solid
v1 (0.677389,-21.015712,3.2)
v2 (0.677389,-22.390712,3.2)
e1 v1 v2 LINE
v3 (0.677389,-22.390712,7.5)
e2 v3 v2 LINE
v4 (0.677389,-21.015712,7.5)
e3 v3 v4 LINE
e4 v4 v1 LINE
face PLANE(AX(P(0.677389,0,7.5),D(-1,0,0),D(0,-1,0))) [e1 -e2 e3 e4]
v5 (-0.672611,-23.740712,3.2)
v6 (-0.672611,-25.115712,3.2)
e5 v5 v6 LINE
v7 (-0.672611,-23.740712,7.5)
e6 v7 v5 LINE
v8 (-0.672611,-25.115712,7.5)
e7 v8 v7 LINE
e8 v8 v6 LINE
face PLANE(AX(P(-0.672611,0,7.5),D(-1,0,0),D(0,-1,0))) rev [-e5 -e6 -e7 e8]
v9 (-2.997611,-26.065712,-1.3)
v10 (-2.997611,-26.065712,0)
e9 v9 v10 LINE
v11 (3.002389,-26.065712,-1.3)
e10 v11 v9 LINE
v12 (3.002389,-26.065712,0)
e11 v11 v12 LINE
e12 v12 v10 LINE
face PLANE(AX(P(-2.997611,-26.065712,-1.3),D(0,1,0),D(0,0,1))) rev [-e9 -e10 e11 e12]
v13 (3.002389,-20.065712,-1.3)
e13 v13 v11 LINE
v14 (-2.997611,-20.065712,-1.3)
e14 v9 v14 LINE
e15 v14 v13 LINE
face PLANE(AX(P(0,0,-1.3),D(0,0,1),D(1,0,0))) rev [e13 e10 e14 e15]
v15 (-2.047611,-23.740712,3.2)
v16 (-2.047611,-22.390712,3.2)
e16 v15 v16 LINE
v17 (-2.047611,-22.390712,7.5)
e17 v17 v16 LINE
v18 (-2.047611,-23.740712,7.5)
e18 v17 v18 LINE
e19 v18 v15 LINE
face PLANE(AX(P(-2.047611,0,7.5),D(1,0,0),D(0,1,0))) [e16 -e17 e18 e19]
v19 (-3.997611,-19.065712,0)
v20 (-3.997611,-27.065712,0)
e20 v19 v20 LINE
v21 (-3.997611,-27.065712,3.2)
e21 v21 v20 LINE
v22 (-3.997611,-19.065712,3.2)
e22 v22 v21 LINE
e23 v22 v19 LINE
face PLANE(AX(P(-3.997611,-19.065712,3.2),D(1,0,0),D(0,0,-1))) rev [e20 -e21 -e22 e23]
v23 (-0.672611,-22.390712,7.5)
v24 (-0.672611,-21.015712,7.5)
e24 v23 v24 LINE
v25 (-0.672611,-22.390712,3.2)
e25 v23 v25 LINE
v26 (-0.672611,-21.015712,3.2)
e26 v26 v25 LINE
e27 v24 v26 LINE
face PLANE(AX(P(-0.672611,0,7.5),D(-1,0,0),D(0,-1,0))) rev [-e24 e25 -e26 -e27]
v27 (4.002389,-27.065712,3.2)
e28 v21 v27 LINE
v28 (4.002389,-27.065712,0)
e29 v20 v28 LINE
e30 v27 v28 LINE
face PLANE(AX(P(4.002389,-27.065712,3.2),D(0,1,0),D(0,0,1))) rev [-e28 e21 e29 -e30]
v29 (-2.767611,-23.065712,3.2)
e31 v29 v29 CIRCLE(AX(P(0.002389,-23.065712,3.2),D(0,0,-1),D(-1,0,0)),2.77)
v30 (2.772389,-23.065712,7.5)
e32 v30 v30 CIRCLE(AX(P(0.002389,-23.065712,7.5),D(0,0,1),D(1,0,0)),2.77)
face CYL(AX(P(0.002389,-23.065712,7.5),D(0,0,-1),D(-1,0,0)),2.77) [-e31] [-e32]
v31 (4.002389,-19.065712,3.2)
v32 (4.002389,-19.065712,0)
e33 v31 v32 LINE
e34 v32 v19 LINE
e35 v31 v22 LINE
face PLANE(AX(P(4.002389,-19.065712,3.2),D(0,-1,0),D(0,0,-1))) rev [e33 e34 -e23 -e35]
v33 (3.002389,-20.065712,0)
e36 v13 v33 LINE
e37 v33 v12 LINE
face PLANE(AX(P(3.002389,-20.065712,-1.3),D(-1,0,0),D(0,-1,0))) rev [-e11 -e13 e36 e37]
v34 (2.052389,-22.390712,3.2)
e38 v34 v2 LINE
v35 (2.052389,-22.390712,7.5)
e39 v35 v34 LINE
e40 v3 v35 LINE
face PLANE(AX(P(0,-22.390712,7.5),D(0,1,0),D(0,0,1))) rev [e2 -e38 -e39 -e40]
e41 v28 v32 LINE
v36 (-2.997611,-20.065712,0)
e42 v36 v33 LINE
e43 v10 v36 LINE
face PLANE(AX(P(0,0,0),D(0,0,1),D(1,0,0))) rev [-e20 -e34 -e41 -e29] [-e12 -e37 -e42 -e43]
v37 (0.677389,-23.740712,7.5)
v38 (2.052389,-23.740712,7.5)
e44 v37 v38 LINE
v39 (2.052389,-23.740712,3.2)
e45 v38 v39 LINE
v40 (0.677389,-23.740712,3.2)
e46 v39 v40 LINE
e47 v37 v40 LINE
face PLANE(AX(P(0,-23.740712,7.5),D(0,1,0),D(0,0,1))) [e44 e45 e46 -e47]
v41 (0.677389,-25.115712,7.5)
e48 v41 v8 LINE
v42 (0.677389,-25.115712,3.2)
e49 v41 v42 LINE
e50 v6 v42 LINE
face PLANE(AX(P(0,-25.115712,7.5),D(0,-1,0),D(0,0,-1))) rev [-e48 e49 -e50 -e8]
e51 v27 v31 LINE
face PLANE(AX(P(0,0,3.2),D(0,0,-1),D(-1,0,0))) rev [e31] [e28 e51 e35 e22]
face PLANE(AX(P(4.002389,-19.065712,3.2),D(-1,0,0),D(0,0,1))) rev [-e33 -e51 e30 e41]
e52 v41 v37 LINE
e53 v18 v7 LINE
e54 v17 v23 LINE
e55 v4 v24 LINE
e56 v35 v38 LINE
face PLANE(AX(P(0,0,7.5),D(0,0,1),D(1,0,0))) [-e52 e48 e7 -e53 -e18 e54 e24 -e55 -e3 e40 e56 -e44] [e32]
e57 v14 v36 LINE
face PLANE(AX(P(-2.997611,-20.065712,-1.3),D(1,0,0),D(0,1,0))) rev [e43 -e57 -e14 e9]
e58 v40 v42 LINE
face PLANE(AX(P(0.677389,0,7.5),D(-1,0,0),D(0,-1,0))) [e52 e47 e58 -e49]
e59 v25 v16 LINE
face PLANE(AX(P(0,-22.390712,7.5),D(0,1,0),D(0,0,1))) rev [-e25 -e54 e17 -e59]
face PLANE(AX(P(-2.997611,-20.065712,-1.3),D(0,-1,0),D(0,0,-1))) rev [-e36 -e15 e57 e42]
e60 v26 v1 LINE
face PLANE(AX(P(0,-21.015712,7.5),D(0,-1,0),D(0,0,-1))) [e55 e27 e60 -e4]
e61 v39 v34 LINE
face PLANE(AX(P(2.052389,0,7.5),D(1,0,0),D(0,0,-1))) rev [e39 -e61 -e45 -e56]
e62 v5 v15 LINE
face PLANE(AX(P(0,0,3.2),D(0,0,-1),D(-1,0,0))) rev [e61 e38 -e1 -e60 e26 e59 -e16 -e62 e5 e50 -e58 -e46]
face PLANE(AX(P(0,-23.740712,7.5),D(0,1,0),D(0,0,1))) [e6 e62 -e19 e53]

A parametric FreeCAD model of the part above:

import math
import FreeCAD as App
import Part
import Sketcher
from FreeCAD import Vector
Q = App.Units.Quantity

doc = App.newDocument("Part")
params = doc.addObject("Spreadsheet::Sheet", "Params")
for row, (alias, value) in enumerate([
    ("sketch1_radius", "2.77 mm"),
    ("sketch1_width", "1.35 mm"),
    ("pad1_length", "7.5 mm"),
    ("sketch2_width", "8 mm"),
    ("pad2_length", "3.2 mm"),
    ("sketch3_width", "6 mm"),
    ("pad3_length", "1.3 mm"),
], start=1):
    params.set(f"A{row}", alias)
    params.set(f"B{row}", "=" + value)
    params.setAlias(f"B{row}", alias)

body = doc.addObject("PartDesign::Body", "Body")

sketch1 = doc.addObject("Sketcher::SketchObject", "Sketch")
body.addObject(sketch1)
sketch1.AttachmentSupport = (doc.XY_Plane, [""])
sketch1.MapMode = "FlatFace"
sketch1.addGeometry(Part.ArcOfCircle(Part.Circle(Vector(0, -23.1, 0), Vector(0, 0, 1), 2.8), math.radians(0), math.radians(90)), False)
sketch1.addGeometry(Part.ArcOfCircle(Part.Circle(Vector(0, -23.1, 0), Vector(0, 0, 1), 2.8), math.radians(90), math.radians(180)), False)
sketch1.addGeometry(Part.ArcOfCircle(Part.Circle(Vector(0, -23.1, 0), Vector(0, 0, 1), 2.8), math.radians(180), math.radians(270)), False)
sketch1.addGeometry(Part.ArcOfCircle(Part.Circle(Vector(0, -23.1, 0), Vector(0, 0, 1), 2.8), math.radians(-90), math.radians(0)), False)
sketch1.addGeometry(Part.LineSegment(Vector(-0.7, -23.7, 0), Vector(-2, -23.7, 0)), False)
sketch1.addGeometry(Part.LineSegment(Vector(-2, -23.7, 0), Vector(-2, -22.4, 0)), False)
sketch1.addGeometry(Part.LineSegment(Vector(-2, -22.4, 0), Vector(-0.7, -22.4, 0)), False)
sketch1.addGeometry(Part.LineSegment(Vector(-0.7, -22.4, 0), Vector(-0.7, -21, 0)), False)
sketch1.addGeometry(Part.LineSegment(Vector(-0.7, -21, 0), Vector(0.7, -21, 0)), False)
sketch1.addGeometry(Part.LineSegment(Vector(0.7, -21, 0), Vector(0.7, -22.4, 0)), False)
sketch1.addGeometry(Part.LineSegment(Vector(0.7, -22.4, 0), Vector(2.1, -22.4, 0)), False)
sketch1.addGeometry(Part.LineSegment(Vector(2.1, -22.4, 0), Vector(2.1, -23.7, 0)), False)
sketch1.addGeometry(Part.LineSegment(Vector(2.1, -23.7, 0), Vector(0.7, -23.7, 0)), False)
sketch1.addGeometry(Part.LineSegment(Vector(0.7, -23.7, 0), Vector(0.7, -25.1, 0)), False)
sketch1.addGeometry(Part.LineSegment(Vector(0.7, -25.1, 0), Vector(-0.7, -25.1, 0)), False)
sketch1.addGeometry(Part.LineSegment(Vector(-0.7, -25.1, 0), Vector(-0.7, -23.7, 0)), False)
sketch1.addConstraint(Sketcher.Constraint("Tangent", 0, 2, 1, 1))
sketch1.addConstraint(Sketcher.Constraint("Tangent", 1, 2, 2, 1))
sketch1.addConstraint(Sketcher.Constraint("Tangent", 2, 2, 3, 1))
sketch1.addConstraint(Sketcher.Constraint("Tangent", 3, 2, 0, 1))
sketch1.addConstraint(Sketcher.Constraint("Coincident", 4, 2, 5, 1))
sketch1.addConstraint(Sketcher.Constraint("Coincident", 5, 2, 6, 1))
sketch1.addConstraint(Sketcher.Constraint("Coincident", 6, 2, 7, 1))
sketch1.addConstraint(Sketcher.Constraint("Coincident", 7, 2, 8, 1))
sketch1.addConstraint(Sketcher.Constraint("Coincident", 8, 2, 9, 1))
sketch1.addConstraint(Sketcher.Constraint("Coincident", 9, 2, 10, 1))
sketch1.addConstraint(Sketcher.Constraint("Coincident", 10, 2, 11, 1))
sketch1.addConstraint(Sketcher.Constraint("Coincident", 11, 2, 12, 1))
sketch1.addConstraint(Sketcher.Constraint("Coincident", 12, 2, 13, 1))
sketch1.addConstraint(Sketcher.Constraint("Coincident", 13, 2, 14, 1))
sketch1.addConstraint(Sketcher.Constraint("Coincident", 14, 2, 15, 1))
sketch1.addConstraint(Sketcher.Constraint("Coincident", 15, 2, 4, 1))
sketch1.addConstraint(Sketcher.Constraint("Horizontal", 4))
sketch1.addConstraint(Sketcher.Constraint("Vertical", 5))
sketch1.addConstraint(Sketcher.Constraint("Horizontal", 6))
sketch1.addConstraint(Sketcher.Constraint("Vertical", 7))
sketch1.addConstraint(Sketcher.Constraint("Horizontal", 8))
sketch1.addConstraint(Sketcher.Constraint("Vertical", 9))
sketch1.addConstraint(Sketcher.Constraint("Horizontal", 10))
sketch1.addConstraint(Sketcher.Constraint("Vertical", 11))
sketch1.addConstraint(Sketcher.Constraint("Horizontal", 12))
sketch1.addConstraint(Sketcher.Constraint("Vertical", 13))
sketch1.addConstraint(Sketcher.Constraint("Horizontal", 14))
sketch1.addConstraint(Sketcher.Constraint("Vertical", 15))
sketch1.addConstraint(Sketcher.Constraint("Equal", 0, 1))
sketch1.addConstraint(Sketcher.Constraint("Horizontal", 3, 3, 1, 2))
sketch1.addConstraint(Sketcher.Constraint("Horizontal", 1, 2, 3, 2))
sketch1.addConstraint(Sketcher.Constraint("Horizontal", 6, 2, 9, 2))
sketch1.addConstraint(Sketcher.Constraint("Horizontal", 4, 2, 11, 2))
sketch1.addConstraint(Sketcher.Constraint("Vertical", 3, 3, 0, 2))
sketch1.addConstraint(Sketcher.Constraint("Vertical", 0, 2, 2, 2))
sketch1.addConstraint(Sketcher.Constraint("Vertical", 9, 2, 12, 2))
sketch1.addConstraint(Sketcher.Constraint("Vertical", 7, 2, 14, 2))
sketch1.addConstraint(Sketcher.Constraint("Equal", 6, 10))
sketch1.addConstraint(Sketcher.Constraint("Equal", 14, 5))
sketch1.addConstraint(Sketcher.Constraint("Equal", 12, 7))
sketch1.addConstraint(Sketcher.Constraint("Equal", 9, 13))
sketch1.addConstraint(Sketcher.Constraint("Radius", 0, Q("2.77 mm")))
sketch1.addConstraint(Sketcher.Constraint("DistanceX", 8, 1, 8, 2, Q("1.35 mm")))
sketch1.addConstraint(Sketcher.Constraint("DistanceX", 4, 2, 4, 1, Q("1.375 mm")))
sketch1.addConstraint(Sketcher.Constraint("DistanceX", 1, 2, 4, 2, Q("0.72 mm")))
sketch1.addConstraint(Sketcher.Constraint("DistanceY", 7, 2, 0, 2, Q("0.72 mm")))
sketch1.addConstraint(Sketcher.Constraint("DistanceX", -1, 1, 0, 3, Q("0.002389 mm")))
sketch1.addConstraint(Sketcher.Constraint("DistanceY", 0, 3, -1, 1, Q("23.065712 mm")))
sketch1.setExpression("Constraints[41]", "Params.sketch1_radius")
sketch1.setExpression("Constraints[42]", "Params.sketch1_width")
pad1 = doc.addObject("PartDesign::Pad", "Pad")
body.addObject(pad1)
pad1.Profile = sketch1
pad1.setExpression("Length", "Params.pad1_length")

sketch2 = doc.addObject("Sketcher::SketchObject", "Sketch001")
body.addObject(sketch2)
sketch2.AttachmentSupport = (doc.XY_Plane, [""])
sketch2.MapMode = "FlatFace"
sketch2.addGeometry(Part.LineSegment(Vector(4, -27, 0), Vector(4, -19, 0)), False)
sketch2.addGeometry(Part.LineSegment(Vector(4, -19, 0), Vector(-4, -19, 0)), False)
sketch2.addGeometry(Part.LineSegment(Vector(-4, -19, 0), Vector(-4, -27, 0)), False)
sketch2.addGeometry(Part.LineSegment(Vector(-4, -27, 0), Vector(4, -27, 0)), False)
sketch2.addConstraint(Sketcher.Constraint("Coincident", 0, 2, 1, 1))
sketch2.addConstraint(Sketcher.Constraint("Coincident", 1, 2, 2, 1))
sketch2.addConstraint(Sketcher.Constraint("Coincident", 2, 2, 3, 1))
sketch2.addConstraint(Sketcher.Constraint("Coincident", 3, 2, 0, 1))
sketch2.addConstraint(Sketcher.Constraint("Vertical", 0))
sketch2.addConstraint(Sketcher.Constraint("Horizontal", 1))
sketch2.addConstraint(Sketcher.Constraint("Vertical", 2))
sketch2.addConstraint(Sketcher.Constraint("Horizontal", 3))
sketch2.addConstraint(Sketcher.Constraint("Equal", 3, 0))
sketch2.addConstraint(Sketcher.Constraint("DistanceX", 1, 2, 1, 1, Q("8 mm")))
sketch2.addConstraint(Sketcher.Constraint("DistanceX", -1, 1, 0, 2, Q("4.002389 mm")))
sketch2.addConstraint(Sketcher.Constraint("DistanceY", 0, 2, -1, 1, Q("19.065712 mm")))
sketch2.setExpression("Constraints[9]", "Params.sketch2_width")
pad2 = doc.addObject("PartDesign::Pad", "Pad001")
body.addObject(pad2)
pad2.Profile = sketch2
pad2.setExpression("Length", "Params.pad2_length")

sketch3 = doc.addObject("Sketcher::SketchObject", "Sketch002")
body.addObject(sketch3)
sketch3.AttachmentSupport = (doc.XY_Plane, [""])
sketch3.MapMode = "FlatFace"
sketch3.addGeometry(Part.LineSegment(Vector(3, -20, 0), Vector(3, -26, 0)), False)
sketch3.addGeometry(Part.LineSegment(Vector(3, -26, 0), Vector(-3, -26, 0)), False)
sketch3.addGeometry(Part.LineSegment(Vector(-3, -26, 0), Vector(-3, -20, 0)), False)
sketch3.addGeometry(Part.LineSegment(Vector(-3, -20, 0), Vector(3, -20, 0)), False)
sketch3.addConstraint(Sketcher.Constraint("Coincident", 0, 2, 1, 1))
sketch3.addConstraint(Sketcher.Constraint("Coincident", 1, 2, 2, 1))
sketch3.addConstraint(Sketcher.Constraint("Coincident", 2, 2, 3, 1))
sketch3.addConstraint(Sketcher.Constraint("Coincident", 3, 2, 0, 1))
sketch3.addConstraint(Sketcher.Constraint("Vertical", 0))
sketch3.addConstraint(Sketcher.Constraint("Horizontal", 1))
sketch3.addConstraint(Sketcher.Constraint("Vertical", 2))
sketch3.addConstraint(Sketcher.Constraint("Horizontal", 3))
sketch3.addConstraint(Sketcher.Constraint("Equal", 3, 0))
sketch3.addConstraint(Sketcher.Constraint("DistanceX", 1, 2, 1, 1, Q("6 mm")))
sketch3.addConstraint(Sketcher.Constraint("DistanceX", -1, 1, 0, 2, Q("3.002389 mm")))
sketch3.addConstraint(Sketcher.Constraint("DistanceY", 0, 2, -1, 1, Q("26.065712 mm")))
sketch3.setExpression("Constraints[9]", "Params.sketch3_width")
pad3 = doc.addObject("PartDesign::Pad", "Pad002")
body.addObject(pad3)
pad3.Profile = sketch3
pad3.setExpression("Length", "Params.pad3_length")
pad3.Reversed = True

doc.recompute()
